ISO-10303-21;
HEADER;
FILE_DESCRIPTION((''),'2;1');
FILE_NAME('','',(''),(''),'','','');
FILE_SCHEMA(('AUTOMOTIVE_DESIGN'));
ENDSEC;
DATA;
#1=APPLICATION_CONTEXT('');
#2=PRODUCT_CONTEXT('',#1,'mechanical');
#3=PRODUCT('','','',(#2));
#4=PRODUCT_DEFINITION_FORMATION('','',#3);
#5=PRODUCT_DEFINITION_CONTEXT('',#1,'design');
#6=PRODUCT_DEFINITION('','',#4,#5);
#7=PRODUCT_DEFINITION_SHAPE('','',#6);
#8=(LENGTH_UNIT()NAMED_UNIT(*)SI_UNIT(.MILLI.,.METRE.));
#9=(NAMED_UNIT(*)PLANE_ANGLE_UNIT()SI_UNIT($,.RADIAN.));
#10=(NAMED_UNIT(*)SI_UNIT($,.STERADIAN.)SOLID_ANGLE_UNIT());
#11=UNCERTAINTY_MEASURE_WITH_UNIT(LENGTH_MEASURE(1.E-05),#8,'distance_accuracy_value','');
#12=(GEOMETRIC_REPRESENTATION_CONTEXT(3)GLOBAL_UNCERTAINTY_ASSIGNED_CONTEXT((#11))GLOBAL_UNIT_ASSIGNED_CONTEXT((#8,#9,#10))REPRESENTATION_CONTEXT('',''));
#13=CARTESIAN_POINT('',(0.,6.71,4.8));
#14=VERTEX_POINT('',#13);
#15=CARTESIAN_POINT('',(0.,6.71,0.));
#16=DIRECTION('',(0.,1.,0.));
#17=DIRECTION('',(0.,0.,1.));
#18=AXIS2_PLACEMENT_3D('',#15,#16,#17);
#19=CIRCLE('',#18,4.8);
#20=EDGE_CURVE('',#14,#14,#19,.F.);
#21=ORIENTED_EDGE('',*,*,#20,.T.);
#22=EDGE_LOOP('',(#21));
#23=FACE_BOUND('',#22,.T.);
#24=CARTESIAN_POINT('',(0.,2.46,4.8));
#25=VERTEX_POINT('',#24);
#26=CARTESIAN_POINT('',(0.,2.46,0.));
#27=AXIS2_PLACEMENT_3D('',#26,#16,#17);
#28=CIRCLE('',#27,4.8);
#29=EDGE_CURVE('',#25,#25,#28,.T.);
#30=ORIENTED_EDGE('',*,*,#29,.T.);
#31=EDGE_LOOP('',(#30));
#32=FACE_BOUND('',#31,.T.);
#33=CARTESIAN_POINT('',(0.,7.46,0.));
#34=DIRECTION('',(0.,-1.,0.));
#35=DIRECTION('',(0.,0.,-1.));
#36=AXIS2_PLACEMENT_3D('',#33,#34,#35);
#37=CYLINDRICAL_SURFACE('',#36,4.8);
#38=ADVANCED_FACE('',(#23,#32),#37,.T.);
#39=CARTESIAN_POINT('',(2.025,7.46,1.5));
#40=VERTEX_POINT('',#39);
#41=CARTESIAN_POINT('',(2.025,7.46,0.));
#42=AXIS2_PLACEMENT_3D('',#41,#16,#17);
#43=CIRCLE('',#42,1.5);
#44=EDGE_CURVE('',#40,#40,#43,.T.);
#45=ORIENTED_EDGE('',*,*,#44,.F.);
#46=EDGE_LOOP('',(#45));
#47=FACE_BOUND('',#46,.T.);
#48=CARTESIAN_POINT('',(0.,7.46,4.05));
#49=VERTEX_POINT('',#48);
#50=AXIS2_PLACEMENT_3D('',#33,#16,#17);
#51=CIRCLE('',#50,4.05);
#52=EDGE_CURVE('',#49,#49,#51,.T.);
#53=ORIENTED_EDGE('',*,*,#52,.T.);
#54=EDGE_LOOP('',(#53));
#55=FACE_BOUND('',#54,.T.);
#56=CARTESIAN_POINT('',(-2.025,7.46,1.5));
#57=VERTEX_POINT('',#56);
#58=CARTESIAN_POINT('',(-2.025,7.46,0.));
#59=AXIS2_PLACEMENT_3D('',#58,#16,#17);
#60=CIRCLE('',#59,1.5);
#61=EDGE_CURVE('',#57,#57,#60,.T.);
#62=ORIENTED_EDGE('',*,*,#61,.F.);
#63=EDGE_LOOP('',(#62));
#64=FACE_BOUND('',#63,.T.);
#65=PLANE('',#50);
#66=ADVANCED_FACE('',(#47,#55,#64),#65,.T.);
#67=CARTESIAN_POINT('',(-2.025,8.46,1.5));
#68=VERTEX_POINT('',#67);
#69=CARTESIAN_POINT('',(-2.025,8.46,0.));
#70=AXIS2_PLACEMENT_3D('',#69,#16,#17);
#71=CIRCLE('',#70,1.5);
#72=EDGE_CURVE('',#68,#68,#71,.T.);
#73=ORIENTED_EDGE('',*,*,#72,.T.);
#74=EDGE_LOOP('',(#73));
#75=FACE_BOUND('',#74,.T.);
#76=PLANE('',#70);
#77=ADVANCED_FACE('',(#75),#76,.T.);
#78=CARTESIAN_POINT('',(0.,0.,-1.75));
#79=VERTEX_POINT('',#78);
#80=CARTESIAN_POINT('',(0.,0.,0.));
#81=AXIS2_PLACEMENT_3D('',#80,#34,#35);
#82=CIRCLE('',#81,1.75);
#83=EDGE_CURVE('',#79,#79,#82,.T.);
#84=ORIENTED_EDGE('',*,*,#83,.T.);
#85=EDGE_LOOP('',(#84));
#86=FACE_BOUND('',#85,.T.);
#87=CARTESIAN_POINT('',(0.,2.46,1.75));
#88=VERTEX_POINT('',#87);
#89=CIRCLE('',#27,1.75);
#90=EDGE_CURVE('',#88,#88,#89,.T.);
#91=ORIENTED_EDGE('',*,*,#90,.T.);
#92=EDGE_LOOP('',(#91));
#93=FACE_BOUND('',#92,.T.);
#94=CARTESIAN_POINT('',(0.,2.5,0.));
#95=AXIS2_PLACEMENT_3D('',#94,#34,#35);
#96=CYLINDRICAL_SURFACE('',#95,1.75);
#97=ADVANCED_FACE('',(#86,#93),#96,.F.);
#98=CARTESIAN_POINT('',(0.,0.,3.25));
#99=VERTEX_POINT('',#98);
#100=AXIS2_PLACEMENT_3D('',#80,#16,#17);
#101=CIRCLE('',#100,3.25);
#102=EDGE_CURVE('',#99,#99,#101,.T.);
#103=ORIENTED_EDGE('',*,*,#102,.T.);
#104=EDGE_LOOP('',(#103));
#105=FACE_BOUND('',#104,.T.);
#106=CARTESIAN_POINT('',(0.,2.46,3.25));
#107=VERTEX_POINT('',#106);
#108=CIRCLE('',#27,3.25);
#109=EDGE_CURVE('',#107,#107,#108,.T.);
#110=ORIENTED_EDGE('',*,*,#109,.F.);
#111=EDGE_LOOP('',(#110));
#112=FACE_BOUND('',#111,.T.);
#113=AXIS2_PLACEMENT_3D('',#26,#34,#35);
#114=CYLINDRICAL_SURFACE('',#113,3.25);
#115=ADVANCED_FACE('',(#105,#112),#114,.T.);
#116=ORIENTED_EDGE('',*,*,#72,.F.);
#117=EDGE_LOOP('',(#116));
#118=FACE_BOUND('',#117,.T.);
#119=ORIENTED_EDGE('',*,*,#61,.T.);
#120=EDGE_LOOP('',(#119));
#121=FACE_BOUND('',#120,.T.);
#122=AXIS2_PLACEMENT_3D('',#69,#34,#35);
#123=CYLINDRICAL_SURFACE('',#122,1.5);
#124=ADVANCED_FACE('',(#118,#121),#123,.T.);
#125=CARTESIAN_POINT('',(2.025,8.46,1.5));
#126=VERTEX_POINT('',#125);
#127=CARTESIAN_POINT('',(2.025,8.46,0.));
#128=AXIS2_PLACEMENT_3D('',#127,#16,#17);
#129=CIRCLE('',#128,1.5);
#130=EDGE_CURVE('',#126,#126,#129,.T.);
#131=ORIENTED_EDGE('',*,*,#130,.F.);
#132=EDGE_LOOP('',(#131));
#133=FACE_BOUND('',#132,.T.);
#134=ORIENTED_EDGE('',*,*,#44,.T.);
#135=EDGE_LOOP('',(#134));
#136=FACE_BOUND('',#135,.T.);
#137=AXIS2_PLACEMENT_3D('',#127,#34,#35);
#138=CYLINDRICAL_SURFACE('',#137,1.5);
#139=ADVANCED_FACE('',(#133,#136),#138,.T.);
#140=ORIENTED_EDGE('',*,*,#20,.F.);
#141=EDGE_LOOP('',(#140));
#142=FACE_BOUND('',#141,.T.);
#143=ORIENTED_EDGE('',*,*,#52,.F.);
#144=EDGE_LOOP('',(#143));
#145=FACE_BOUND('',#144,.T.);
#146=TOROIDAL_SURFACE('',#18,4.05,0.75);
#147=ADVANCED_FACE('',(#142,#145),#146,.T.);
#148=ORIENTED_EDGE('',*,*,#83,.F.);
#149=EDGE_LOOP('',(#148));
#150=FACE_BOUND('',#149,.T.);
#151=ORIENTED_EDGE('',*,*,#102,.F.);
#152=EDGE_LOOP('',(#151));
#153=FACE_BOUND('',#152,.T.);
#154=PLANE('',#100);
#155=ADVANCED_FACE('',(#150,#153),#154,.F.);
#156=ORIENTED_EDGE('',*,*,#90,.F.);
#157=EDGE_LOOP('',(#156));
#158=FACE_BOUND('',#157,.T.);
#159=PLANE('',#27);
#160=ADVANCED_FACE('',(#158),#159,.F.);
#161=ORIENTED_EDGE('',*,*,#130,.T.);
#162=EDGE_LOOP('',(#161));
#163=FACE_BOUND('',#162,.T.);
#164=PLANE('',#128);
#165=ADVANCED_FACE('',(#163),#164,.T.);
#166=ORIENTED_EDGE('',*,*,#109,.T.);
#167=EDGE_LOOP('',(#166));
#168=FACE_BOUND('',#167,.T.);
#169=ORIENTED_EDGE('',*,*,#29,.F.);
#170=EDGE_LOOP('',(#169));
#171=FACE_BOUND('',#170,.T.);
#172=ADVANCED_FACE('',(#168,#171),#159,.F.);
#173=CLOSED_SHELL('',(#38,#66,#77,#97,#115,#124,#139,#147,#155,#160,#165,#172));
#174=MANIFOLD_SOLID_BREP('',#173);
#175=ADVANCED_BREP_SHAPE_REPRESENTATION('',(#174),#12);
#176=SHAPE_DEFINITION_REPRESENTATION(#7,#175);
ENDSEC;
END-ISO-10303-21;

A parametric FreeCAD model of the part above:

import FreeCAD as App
import Part
import Sketcher

V = App.Vector
Q = App.Units.Quantity


def edges_at(feature, points):
    """Names of the edges that pass closest to the given points."""
    edges = feature.Shape.Edges
    near = lambda p: min(range(len(edges)), key=lambda i: edges[i].distToShape(Part.Vertex(*p))[0])
    return sorted({f"Edge{near(p) + 1}" for p in points})

doc = App.newDocument("Part")
params = doc.addObject("Spreadsheet::Sheet", "Params")
for row, (alias, value) in enumerate([
    ("sketch1_diameter", "6.5 mm"),
    ("pad1_length", "2.46 mm"),
    ("sketch2_diameter", "3.5 mm"),
    ("pocket1_length", "2.5 mm"),
    ("sketch3_diameter", "9.6 mm"),
    ("pad2_length", "5 mm"),
    ("fillet_radius", "0.75 mm"),
    ("sketch4_diameter", "3 mm"),
    ("pad3_length", "1 mm"),
], start=1):
    params.set(f"A{row}", alias)
    params.set(f"B{row}", "=" + value)
    params.setAlias(f"B{row}", alias)

body = doc.addObject("PartDesign::Body", "Body")

sketch1 = body.newObject("Sketcher::SketchObject", "Sketch")
sketch1.AttachmentSupport = (doc.getObject("XZ_Plane"), [""])
sketch1.MapMode = "FlatFace"
sketch1.addGeometry(Part.Circle(V(0, 0, 0), V(0, 0, 1), 3.2), False)
sketch1.addConstraint(Sketcher.Constraint("Coincident", 0, 3, -1, 1))
sketch1.addConstraint(Sketcher.Constraint("Diameter", 0, Q("6.5 mm")))
sketch1.setExpression("Constraints[1]", "Params.sketch1_diameter")
pad1 = body.newObject("PartDesign::Pad", "Pad")
pad1.Profile = sketch1
pad1.setExpression("Length", "Params.pad1_length")
pad1.Reversed = True

sketch2 = body.newObject("Sketcher::SketchObject", "Sketch001")
sketch2.AttachmentSupport = (doc.getObject("XZ_Plane"), [""])
sketch2.MapMode = "FlatFace"
sketch2.addGeometry(Part.Circle(V(0, 0, 0), V(0, 0, 1), 1.8), False)
sketch2.addConstraint(Sketcher.Constraint("Coincident", 0, 3, -1, 1))
sketch2.addConstraint(Sketcher.Constraint("Diameter", 0, Q("3.5 mm")))
sketch2.setExpression("Constraints[1]", "Params.sketch2_diameter")
pocket1 = body.newObject("PartDesign::Pocket", "Pocket")
pocket1.Profile = sketch2
pocket1.setExpression("Length", "Params.pocket1_length")

sketch3 = body.newObject("Sketcher::SketchObject", "Sketch002")
sketch3.AttachmentSupport = (doc.getObject("XZ_Plane"), [""])
sketch3.MapMode = "FlatFace"
sketch3.AttachmentOffset = App.Placement(V(0, 0, -2.46), App.Rotation())
sketch3.addGeometry(Part.Circle(V(0, 0, 0), V(0, 0, 1), 4.8), False)
sketch3.addConstraint(Sketcher.Constraint("Coincident", 0, 3, -1, 1))
sketch3.addConstraint(Sketcher.Constraint("Diameter", 0, Q("9.6 mm")))
sketch3.setExpression("Constraints[1]", "Params.sketch3_diameter")
pad2 = body.newObject("PartDesign::Pad", "Pad001")
pad2.Profile = sketch3
pad2.setExpression("Length", "Params.pad2_length")
pad2.Reversed = True
doc.recompute()

fillet = body.newObject("PartDesign::Fillet", "Fillet")
fillet.Base = (pad2, edges_at(pad2, [(-4.8, 7.46, 0)]))
fillet.setExpression("Radius", "Params.fillet_radius")

sketch4 = body.newObject("Sketcher::SketchObject", "Sketch003")
sketch4.AttachmentSupport = (doc.getObject("XZ_Plane"), [""])
sketch4.MapMode = "FlatFace"
sketch4.AttachmentOffset = App.Placement(V(0, 0, -7.46), App.Rotation())
sketch4.addGeometry(Part.Circle(V(-2, 0, 0), V(0, 0, 1), 1.5), False)
sketch4.addGeometry(Part.Circle(V(2, 0, 0), V(0, 0, 1), 1.5), False)
sketch4.addConstraint(Sketcher.Constraint("Equal", 0, 1))
sketch4.addConstraint(Sketcher.Constraint("Symmetric", 0, 3, 1, 3, -1, 1))
sketch4.addConstraint(Sketcher.Constraint("PointOnObject", 0, 3, -1))
sketch4.addConstraint(Sketcher.Constraint("Diameter", 0, Q("3 mm")))
sketch4.addConstraint(Sketcher.Constraint("DistanceX", 0, 3, 1, 3, Q("4.05 mm")))
sketch4.setExpression("Constraints[3]", "Params.sketch4_diameter")
pad3 = body.newObject("PartDesign::Pad", "Pad002")
pad3.Profile = sketch4
pad3.setExpression("Length", "Params.pad3_length")
pad3.Reversed = True

doc.recompute()
